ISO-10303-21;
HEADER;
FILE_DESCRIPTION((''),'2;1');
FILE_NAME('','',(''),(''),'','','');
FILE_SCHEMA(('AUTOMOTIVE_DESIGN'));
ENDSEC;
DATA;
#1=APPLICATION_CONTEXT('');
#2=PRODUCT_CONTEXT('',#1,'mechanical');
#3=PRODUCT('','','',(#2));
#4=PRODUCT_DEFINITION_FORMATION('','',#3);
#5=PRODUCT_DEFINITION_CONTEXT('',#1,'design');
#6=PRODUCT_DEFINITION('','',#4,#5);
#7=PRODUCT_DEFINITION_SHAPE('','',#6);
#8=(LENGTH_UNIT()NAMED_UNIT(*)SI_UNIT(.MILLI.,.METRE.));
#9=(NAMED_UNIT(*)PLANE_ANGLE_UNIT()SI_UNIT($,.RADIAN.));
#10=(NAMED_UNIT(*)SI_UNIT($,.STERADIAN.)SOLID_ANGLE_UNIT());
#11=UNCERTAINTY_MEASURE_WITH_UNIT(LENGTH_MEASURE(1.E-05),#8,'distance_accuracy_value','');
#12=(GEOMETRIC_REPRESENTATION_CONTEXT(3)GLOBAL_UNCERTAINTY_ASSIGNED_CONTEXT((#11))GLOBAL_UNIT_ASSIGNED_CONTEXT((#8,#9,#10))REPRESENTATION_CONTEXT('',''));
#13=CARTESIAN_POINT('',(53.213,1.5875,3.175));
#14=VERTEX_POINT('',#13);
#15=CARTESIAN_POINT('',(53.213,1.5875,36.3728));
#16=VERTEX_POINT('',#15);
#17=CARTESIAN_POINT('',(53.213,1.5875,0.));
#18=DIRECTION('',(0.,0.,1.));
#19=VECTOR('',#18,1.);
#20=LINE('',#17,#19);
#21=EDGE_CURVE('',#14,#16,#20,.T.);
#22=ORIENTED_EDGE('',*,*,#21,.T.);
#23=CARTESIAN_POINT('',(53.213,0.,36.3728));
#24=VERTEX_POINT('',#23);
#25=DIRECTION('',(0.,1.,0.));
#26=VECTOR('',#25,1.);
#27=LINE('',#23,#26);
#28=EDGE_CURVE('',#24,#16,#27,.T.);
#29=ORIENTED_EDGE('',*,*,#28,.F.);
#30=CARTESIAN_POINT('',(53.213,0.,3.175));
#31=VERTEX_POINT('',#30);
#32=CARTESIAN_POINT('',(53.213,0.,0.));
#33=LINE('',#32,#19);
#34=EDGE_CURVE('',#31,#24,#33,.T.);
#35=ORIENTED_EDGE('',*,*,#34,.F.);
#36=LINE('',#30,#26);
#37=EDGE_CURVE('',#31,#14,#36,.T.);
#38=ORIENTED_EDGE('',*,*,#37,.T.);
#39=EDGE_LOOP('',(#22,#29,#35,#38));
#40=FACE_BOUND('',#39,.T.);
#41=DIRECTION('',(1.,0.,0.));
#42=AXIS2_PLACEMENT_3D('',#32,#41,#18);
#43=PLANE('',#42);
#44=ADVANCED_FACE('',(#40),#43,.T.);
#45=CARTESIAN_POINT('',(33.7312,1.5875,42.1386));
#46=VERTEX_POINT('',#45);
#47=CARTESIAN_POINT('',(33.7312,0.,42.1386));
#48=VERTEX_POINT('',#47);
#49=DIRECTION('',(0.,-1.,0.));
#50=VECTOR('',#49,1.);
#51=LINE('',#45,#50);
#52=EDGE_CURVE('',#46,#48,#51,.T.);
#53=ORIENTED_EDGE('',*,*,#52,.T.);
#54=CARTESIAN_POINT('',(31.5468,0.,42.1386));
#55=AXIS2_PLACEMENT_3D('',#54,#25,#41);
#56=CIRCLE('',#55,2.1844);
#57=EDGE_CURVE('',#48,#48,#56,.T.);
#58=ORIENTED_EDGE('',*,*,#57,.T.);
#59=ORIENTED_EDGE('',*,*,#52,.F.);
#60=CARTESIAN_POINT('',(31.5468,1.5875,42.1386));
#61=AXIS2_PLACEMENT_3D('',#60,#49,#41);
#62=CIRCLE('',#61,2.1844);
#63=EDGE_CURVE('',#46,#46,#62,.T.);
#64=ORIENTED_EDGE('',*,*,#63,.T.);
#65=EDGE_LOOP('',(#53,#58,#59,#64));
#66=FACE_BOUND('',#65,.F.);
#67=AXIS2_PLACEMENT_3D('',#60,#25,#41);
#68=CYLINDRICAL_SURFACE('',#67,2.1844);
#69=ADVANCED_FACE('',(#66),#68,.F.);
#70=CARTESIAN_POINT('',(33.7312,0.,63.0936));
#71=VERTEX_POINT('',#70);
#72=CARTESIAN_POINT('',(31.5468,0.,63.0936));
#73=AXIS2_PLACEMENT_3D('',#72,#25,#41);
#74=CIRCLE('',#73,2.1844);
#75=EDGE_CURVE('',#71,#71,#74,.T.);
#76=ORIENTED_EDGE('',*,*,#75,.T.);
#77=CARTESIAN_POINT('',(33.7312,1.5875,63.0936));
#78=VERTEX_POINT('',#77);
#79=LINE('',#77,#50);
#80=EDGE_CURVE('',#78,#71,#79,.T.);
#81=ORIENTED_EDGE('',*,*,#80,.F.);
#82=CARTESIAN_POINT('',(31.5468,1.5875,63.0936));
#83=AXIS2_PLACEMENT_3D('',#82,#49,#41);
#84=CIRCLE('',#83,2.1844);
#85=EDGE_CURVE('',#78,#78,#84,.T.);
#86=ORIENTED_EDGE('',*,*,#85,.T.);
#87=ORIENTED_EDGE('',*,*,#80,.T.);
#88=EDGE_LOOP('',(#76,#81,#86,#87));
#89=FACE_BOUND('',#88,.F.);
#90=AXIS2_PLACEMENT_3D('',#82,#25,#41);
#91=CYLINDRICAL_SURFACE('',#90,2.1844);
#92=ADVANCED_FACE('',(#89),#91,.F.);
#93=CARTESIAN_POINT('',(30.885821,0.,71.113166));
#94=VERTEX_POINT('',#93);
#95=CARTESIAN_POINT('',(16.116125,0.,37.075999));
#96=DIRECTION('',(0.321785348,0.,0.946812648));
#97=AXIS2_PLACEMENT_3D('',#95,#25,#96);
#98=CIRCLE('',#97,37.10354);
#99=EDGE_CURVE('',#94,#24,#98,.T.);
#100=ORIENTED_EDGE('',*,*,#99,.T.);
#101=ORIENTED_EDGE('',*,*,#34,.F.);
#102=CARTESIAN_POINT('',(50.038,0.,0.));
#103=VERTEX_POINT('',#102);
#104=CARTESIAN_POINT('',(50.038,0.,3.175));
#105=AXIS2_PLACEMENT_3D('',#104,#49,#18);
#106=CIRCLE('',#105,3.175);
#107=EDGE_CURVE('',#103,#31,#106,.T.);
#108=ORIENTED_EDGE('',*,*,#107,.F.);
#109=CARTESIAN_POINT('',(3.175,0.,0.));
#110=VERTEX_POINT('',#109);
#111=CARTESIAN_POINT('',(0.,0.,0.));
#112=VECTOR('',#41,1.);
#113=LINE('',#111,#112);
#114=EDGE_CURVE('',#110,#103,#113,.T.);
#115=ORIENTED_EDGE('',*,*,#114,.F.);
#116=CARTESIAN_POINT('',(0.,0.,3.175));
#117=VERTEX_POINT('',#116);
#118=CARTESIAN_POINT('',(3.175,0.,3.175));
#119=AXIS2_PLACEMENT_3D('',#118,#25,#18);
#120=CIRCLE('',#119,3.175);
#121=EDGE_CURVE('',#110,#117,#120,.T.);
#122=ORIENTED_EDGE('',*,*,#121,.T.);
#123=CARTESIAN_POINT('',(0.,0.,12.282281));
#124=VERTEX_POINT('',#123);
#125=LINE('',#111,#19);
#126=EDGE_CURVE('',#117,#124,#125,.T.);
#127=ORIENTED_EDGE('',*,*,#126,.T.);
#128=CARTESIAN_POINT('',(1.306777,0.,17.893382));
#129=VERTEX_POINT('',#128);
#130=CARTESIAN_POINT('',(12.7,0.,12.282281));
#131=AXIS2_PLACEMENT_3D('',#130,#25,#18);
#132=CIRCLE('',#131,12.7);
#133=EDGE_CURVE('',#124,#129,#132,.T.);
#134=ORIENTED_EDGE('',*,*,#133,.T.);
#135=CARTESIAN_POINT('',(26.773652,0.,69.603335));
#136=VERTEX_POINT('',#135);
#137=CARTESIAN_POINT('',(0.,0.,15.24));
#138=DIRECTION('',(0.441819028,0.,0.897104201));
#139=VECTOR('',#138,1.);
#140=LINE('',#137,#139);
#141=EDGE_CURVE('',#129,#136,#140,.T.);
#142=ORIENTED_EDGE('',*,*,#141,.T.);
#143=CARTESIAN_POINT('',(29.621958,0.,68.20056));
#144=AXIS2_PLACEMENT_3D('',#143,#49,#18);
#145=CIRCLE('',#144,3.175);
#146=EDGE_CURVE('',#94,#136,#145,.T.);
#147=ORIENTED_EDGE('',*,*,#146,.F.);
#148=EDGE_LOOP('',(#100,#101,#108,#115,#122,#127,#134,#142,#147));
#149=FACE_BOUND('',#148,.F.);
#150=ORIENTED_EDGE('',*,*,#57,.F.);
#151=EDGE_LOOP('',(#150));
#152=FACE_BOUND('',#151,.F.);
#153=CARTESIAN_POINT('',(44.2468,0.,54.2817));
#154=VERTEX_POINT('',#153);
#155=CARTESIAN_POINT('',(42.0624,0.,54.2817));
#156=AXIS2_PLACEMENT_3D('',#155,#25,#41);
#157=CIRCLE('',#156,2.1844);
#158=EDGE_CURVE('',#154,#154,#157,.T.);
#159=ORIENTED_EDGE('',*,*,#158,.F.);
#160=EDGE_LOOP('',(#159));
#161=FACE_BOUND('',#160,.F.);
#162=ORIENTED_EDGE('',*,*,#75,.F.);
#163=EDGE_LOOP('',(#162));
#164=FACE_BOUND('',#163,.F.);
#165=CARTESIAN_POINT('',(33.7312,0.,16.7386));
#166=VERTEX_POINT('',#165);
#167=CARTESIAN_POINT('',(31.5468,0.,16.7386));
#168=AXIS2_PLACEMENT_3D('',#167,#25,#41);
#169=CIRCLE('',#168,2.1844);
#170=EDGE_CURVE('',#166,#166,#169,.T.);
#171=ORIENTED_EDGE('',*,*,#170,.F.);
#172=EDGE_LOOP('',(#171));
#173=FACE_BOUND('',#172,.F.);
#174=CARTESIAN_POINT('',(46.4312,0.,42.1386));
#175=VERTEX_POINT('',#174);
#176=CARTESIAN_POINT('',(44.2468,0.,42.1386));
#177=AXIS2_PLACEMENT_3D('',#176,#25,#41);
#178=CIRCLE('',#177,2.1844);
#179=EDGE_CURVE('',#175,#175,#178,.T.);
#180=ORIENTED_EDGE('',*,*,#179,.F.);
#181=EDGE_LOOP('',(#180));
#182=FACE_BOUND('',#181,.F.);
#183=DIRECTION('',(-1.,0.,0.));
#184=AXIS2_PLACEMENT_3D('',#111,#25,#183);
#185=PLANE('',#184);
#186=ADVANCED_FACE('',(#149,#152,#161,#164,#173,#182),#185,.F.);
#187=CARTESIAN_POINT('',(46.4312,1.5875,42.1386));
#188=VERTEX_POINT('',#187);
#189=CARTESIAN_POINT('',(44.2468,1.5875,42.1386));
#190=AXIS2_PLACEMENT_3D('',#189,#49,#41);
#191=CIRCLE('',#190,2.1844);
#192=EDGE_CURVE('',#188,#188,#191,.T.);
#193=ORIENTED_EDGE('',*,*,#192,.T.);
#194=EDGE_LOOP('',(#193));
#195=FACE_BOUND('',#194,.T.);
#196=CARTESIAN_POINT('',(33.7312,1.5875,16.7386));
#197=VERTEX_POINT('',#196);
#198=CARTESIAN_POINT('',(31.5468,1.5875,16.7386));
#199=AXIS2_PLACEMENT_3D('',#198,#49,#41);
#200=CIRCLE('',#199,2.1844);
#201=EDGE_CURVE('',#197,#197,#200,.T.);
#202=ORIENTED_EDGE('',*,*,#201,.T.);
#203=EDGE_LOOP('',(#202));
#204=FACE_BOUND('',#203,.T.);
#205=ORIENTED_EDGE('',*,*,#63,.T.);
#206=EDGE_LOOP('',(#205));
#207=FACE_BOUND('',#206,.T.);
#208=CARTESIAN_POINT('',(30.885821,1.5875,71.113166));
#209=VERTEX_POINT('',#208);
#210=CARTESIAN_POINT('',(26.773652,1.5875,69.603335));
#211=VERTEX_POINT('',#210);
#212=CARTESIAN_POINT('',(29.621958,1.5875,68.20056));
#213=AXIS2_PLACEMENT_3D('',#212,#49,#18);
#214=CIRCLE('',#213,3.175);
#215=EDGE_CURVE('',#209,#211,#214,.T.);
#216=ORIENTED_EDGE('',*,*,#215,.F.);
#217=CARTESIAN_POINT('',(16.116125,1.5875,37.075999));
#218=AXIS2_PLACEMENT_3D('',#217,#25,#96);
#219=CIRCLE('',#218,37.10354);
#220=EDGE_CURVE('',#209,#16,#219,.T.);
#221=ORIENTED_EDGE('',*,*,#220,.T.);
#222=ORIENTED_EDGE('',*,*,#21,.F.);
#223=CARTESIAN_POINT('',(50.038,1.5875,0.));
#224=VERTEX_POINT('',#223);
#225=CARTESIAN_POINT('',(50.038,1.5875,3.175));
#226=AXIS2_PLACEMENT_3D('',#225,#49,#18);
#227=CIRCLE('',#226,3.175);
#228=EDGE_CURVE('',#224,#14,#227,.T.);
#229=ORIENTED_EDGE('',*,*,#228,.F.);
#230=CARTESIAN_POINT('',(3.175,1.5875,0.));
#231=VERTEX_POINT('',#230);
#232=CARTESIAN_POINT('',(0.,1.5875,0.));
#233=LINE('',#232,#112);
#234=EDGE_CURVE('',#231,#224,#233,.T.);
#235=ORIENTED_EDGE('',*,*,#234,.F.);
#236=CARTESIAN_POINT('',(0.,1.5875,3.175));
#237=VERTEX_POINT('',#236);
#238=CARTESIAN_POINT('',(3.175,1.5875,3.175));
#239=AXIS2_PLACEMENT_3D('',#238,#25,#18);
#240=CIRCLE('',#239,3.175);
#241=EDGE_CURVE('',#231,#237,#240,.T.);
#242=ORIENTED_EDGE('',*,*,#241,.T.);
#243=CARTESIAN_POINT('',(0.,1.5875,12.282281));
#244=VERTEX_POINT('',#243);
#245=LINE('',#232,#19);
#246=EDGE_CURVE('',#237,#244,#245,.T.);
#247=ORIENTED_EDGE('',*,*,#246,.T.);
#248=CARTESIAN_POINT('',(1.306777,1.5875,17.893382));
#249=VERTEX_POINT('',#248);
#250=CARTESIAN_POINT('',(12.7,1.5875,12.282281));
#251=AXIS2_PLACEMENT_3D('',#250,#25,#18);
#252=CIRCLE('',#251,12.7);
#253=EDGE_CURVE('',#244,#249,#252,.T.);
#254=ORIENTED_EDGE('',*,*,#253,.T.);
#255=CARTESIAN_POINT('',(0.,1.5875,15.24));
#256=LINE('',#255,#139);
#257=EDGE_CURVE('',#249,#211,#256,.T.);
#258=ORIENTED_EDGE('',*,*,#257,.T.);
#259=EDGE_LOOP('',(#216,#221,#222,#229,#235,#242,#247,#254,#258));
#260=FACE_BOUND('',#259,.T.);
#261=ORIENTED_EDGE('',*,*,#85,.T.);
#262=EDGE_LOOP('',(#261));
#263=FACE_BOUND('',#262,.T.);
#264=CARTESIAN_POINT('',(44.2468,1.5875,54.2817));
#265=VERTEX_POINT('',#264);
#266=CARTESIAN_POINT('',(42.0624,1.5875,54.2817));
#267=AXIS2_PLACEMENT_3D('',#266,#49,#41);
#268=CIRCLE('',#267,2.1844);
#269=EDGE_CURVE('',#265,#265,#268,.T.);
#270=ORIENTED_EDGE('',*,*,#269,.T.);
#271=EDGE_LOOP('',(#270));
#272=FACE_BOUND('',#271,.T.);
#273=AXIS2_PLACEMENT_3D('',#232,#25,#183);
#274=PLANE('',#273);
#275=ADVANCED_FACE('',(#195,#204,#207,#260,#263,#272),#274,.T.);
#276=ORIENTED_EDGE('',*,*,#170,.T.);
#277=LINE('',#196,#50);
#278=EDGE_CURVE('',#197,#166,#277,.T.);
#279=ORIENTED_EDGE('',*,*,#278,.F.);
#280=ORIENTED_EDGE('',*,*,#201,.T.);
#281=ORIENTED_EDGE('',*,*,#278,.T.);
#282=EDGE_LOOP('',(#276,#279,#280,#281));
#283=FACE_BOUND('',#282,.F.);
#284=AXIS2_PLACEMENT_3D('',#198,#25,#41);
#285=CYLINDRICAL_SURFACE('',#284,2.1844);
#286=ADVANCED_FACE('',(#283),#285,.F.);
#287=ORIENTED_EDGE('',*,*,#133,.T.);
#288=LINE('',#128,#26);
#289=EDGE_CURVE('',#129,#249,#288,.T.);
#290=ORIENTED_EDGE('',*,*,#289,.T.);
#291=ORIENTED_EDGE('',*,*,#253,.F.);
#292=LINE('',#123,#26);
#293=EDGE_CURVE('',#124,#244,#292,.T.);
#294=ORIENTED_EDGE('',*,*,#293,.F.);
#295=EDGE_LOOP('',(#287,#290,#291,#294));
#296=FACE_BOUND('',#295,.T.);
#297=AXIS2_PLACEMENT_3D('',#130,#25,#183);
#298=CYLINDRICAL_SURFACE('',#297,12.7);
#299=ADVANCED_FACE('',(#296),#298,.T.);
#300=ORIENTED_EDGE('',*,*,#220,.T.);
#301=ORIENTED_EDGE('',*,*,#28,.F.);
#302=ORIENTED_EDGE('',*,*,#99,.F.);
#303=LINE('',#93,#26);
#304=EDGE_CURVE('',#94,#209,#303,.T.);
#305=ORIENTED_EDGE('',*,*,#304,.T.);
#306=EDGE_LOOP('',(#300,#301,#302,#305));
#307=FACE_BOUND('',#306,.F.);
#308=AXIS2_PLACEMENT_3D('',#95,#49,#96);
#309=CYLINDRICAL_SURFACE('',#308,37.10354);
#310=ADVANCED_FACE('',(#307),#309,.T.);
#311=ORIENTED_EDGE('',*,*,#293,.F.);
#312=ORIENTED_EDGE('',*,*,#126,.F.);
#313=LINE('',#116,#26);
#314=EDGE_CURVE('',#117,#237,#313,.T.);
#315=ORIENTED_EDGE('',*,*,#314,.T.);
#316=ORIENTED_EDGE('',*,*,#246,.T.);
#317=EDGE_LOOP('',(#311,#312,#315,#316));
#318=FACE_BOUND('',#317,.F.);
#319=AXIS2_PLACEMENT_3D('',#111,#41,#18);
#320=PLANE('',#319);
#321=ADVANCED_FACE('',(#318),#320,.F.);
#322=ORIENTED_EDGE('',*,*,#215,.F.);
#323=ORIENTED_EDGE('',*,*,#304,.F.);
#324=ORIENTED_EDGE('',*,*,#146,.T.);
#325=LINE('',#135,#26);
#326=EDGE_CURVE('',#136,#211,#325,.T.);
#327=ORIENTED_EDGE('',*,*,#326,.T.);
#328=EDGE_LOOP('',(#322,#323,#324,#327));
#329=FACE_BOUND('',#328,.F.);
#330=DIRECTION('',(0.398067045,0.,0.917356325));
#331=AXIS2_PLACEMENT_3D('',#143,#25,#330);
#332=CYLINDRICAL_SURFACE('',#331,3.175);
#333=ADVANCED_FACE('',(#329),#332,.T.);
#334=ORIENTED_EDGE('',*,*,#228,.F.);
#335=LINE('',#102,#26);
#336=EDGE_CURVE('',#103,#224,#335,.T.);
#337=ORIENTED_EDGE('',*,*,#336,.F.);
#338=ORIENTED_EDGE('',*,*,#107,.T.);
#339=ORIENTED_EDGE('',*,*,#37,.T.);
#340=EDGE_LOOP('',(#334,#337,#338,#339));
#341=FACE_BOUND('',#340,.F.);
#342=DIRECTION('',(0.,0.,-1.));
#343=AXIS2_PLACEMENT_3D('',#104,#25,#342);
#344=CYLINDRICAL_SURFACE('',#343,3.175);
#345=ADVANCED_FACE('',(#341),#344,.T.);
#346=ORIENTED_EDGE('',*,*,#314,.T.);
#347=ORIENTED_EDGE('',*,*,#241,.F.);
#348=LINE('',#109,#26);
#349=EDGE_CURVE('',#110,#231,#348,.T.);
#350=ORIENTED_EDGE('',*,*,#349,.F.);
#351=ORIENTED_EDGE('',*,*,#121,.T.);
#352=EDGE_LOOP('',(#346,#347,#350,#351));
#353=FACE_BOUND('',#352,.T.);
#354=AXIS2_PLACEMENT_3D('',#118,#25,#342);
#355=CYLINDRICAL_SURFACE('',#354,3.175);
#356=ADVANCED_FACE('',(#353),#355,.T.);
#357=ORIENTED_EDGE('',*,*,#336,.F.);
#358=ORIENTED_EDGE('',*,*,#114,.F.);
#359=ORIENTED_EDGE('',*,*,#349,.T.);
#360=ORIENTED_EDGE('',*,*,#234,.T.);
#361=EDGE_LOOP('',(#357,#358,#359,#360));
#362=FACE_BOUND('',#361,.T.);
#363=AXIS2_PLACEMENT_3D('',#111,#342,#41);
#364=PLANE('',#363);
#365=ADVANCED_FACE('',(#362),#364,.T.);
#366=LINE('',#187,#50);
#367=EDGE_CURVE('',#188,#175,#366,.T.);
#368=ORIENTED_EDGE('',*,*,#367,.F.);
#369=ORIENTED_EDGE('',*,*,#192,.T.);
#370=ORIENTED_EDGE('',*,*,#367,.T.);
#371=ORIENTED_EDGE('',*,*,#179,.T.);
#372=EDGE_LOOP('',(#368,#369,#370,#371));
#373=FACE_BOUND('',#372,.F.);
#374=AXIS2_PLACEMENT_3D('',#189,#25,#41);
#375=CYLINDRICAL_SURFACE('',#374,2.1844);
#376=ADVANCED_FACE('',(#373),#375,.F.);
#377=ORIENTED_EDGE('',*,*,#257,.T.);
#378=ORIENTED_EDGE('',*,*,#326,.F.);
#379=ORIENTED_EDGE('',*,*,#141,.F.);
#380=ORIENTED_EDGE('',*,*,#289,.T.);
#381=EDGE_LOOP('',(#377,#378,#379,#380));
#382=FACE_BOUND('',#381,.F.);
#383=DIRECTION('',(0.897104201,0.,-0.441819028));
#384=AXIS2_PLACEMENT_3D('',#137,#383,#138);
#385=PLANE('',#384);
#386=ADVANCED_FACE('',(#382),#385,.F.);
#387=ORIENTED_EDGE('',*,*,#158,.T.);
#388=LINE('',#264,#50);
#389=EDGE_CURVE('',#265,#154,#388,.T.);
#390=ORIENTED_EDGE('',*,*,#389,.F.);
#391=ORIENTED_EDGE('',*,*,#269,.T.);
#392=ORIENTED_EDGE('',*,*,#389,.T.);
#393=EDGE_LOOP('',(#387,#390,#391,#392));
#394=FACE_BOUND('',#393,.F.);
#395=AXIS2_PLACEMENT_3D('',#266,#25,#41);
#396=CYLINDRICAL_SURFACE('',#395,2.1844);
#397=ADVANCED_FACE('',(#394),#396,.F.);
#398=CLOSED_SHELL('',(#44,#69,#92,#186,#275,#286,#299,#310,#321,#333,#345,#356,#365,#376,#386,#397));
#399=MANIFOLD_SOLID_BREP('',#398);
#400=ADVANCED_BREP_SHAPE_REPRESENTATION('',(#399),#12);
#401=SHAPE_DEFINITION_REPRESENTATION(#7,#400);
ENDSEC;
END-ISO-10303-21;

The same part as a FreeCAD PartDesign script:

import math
import FreeCAD as App
import Part
import Sketcher
from FreeCAD import Vector
Q = App.Units.Quantity


def edges_at(feature, points):
    """Names of the edges that pass closest to the given points."""
    edges = feature.Shape.Edges
    near = lambda p: min(range(len(edges)), key=lambda i: edges[i].distToShape(Part.Vertex(*p))[0])
    return sorted({f"Edge{near(p) + 1}" for p in points})

doc = App.newDocument("Part")
body = doc.addObject("PartDesign::Body", "Body")

sketch1 = doc.addObject("Sketcher::SketchObject", "Sketch")
body.addObject(sketch1)
sketch1.AttachmentSupport = (doc.XZ_Plane, [""])
sketch1.MapMode = "FlatFace"
sketch1.addGeometry([
    Part.LineSegment(Vector(53, 0, 0), Vector(0, 0, 0)),
    Part.LineSegment(Vector(0, 0, 0), Vector(0, 15, 0)),
    Part.LineSegment(Vector(0, 15, 0), Vector(28, 72, 0)),
    Part.ArcOfCircle(Part.Circle(Vector(16, 37, 0), Vector(0, 0, 1), 37), math.radians(-1), math.radians(71)),
    Part.LineSegment(Vector(53, 36, 0), Vector(53, 0, 0)),
], False)
sketch1.addConstraint([
    Sketcher.Constraint("Coincident", 0, 2, 1, 1),
    Sketcher.Constraint("Coincident", 1, 2, 2, 1),
    Sketcher.Constraint("Coincident", 2, 2, 3, 2),
    Sketcher.Constraint("Coincident", 3, 1, 4, 1),
    Sketcher.Constraint("Coincident", 4, 2, 0, 1),
    Sketcher.Constraint("Horizontal", 0),
    Sketcher.Constraint("Vertical", 1),
    Sketcher.Constraint("Vertical", 4),
    Sketcher.Constraint("Coincident", 0, 2, -1, 1),
    Sketcher.Constraint("DistanceY", 1, 1, 1, 2, Q("0.6 in")),
    Sketcher.Constraint("Distance", 2, Q("2.5 in")),
    Sketcher.Constraint("DistanceX", 0, 2, 0, 1, Q("2.095 in")),
    Sketcher.Constraint("DistanceY", 4, 2, 4, 1, Q("1.432 in")),
    Sketcher.Constraint("Angle", 2, Q("63.78 deg")),
    Sketcher.Constraint("Radius", 3, 37.1034),
])
pad1 = doc.addObject("PartDesign::Pad", "Pad")
body.addObject(pad1)
pad1.Profile = sketch1
pad1.Length = Q("0.0625 in")
pad1.Reversed = True
doc.recompute()

fillet = doc.addObject("PartDesign::Fillet", "Fillet")
body.addObject(fillet)
fillet.Base = (pad1, edges_at(pad1, [(28.055, 0.794, 72.206), (53.213, 0.794, 0)]))
fillet.Radius = Q("0.125 in")
doc.recompute()

fillet2 = doc.addObject("PartDesign::Fillet", "Fillet001")
body.addObject(fillet2)
fillet2.Base = (fillet, edges_at(fillet, [(0, 0.794, 0)]))
fillet2.Radius = Q("0.125 in")
doc.recompute()

fillet3 = doc.addObject("PartDesign::Fillet", "Fillet002")
body.addObject(fillet3)
fillet3.Base = (fillet2, edges_at(fillet2, [(0, 0.794, 15.24)]))
fillet3.Radius = Q("0.5 in")

sketch2 = doc.addObject("Sketcher::SketchObject", "Sketch001")
body.addObject(sketch2)
sketch2.AttachmentSupport = (doc.XZ_Plane, [""])
sketch2.MapMode = "FlatFace"
sketch2.AttachmentOffset = App.Placement(Vector(0, 0, -0.0625 * 25.4), App.Rotation())
sketch2.addGeometry([
    Part.Circle(Vector(31.5, 16.7, 0), Vector(0, 0, 1), 2.2),
    Part.Circle(Vector(44.2, 42.1, 0), Vector(0, 0, 1), 2.2),
    Part.Circle(Vector(31.5, 42.1, 0), Vector(0, 0, 1), 2.2),
    Part.Circle(Vector(42.1, 54.3, 0), Vector(0, 0, 1), 2.2),
    Part.Circle(Vector(31.5, 63.1, 0), Vector(0, 0, 1), 2.2),
], False)
sketch2.addConstraint([
    Sketcher.Constraint("Equal", 0, 1),
    Sketcher.Constraint("Equal", 1, 2),
    Sketcher.Constraint("Equal", 2, 3),
    Sketcher.Constraint("Equal", 3, 4),
    Sketcher.Constraint("Horizontal", 1, 3, 2, 3),
    Sketcher.Constraint("Vertical", 0, 3, 2, 3),
    Sketcher.Constraint("Vertical", 2, 3, 4, 3),
    Sketcher.Constraint("Diameter", 0, Q("0.172 in")),
    Sketcher.Constraint("DistanceY", 0, 3, 1, 3, Q("1 in")),
    Sketcher.Constraint("DistanceX", 0, 3, 1, 3, Q("0.5 in")),
    Sketcher.Constraint("DistanceY", -1, 1, 0, 3, Q("0.659 in")),
    Sketcher.Constraint("DistanceY", 2, 3, 4, 3, Q("0.825 in")),
    Sketcher.Constraint("DistanceX", -1, 1, 0, 3, Q("1.242 in")),
    Sketcher.Constraint("DistanceX", -1, 1, 3, 3, Q("1.656 in")),
    Sketcher.Constraint("DistanceY", -1, 1, 3, 3, 54.2817),
])
pocket1 = doc.addObject("PartDesign::Pocket", "Pocket")
body.addObject(pocket1)
pocket1.Profile = sketch2
pocket1.Length = Q("0.0625 in")
pocket1.Reversed = True

doc.recompute()
